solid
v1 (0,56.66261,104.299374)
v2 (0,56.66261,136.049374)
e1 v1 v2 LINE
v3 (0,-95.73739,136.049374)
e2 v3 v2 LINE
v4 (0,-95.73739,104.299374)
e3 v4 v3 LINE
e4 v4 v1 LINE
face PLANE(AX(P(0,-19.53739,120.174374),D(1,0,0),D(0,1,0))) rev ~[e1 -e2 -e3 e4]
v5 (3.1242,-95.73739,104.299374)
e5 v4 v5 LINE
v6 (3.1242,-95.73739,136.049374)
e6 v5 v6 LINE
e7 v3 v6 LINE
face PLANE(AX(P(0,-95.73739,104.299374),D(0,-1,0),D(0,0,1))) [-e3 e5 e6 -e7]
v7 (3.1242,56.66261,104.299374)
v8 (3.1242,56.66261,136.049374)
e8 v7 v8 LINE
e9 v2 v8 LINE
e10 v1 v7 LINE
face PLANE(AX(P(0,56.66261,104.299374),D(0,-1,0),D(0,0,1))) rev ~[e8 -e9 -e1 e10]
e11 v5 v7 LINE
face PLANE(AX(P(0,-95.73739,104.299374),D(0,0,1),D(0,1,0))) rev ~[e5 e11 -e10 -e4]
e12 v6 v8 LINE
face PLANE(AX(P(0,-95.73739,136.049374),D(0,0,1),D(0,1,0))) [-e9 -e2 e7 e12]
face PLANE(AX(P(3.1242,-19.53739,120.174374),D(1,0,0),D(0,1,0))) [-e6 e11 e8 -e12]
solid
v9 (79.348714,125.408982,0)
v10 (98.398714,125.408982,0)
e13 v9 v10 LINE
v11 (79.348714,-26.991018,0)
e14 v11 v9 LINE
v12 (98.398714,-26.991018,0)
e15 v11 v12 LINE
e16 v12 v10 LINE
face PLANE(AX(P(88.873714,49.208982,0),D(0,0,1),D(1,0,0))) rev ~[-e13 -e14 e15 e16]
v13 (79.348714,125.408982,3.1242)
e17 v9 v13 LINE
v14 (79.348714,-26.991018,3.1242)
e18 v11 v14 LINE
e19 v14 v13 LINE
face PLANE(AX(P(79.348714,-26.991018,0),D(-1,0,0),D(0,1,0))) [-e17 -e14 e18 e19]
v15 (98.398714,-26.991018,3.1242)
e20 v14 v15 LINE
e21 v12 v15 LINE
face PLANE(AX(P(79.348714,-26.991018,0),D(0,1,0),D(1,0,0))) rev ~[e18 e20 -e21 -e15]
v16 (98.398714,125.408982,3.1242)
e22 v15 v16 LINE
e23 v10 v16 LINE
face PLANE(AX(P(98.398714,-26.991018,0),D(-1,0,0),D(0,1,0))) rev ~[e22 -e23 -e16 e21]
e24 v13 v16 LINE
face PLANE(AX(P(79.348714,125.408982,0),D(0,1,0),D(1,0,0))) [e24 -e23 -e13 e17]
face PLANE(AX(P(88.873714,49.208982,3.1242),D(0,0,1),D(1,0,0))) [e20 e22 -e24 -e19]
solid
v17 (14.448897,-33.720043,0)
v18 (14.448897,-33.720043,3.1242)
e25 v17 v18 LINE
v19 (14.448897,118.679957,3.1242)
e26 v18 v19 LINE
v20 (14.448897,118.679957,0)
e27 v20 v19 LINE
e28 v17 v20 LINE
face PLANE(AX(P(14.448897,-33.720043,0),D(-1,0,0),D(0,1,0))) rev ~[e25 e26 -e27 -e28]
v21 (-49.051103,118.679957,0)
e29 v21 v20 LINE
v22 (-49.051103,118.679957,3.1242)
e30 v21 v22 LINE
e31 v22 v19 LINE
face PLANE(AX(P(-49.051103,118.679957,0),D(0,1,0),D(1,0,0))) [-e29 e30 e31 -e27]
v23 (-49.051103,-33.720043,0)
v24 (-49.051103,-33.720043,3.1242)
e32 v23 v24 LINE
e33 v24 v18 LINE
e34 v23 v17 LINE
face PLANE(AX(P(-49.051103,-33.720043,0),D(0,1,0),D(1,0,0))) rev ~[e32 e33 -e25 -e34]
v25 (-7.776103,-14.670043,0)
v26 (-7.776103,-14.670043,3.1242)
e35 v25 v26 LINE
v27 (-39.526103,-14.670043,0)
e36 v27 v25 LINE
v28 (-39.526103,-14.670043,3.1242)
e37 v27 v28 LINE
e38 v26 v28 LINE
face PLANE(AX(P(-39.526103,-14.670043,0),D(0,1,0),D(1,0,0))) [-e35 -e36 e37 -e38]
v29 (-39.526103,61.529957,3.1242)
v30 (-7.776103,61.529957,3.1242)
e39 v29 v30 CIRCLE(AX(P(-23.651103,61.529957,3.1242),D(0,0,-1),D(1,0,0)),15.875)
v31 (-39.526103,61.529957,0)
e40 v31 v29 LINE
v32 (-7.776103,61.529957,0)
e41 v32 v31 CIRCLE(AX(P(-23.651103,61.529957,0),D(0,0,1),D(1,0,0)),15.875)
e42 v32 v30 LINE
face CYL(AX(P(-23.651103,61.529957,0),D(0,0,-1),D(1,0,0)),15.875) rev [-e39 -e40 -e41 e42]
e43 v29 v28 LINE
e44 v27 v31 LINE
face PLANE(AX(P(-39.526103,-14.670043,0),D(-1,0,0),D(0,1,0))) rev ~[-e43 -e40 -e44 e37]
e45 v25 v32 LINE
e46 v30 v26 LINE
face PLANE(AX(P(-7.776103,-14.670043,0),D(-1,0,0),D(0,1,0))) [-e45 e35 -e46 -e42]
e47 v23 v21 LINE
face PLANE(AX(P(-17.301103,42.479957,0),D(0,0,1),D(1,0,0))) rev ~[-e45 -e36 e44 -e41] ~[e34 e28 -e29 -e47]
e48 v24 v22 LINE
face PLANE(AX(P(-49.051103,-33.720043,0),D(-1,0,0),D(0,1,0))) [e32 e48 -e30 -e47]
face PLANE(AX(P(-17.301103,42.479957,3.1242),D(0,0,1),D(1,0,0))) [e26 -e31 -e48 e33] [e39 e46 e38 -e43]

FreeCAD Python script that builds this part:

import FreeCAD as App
import Part
import Sketcher
from FreeCAD import Vector
Q = App.Units.Quantity

doc = App.newDocument("Part")
params = doc.addObject("Spreadsheet::Sheet", "Params")
for row, (alias, value) in enumerate([
    ("sketch1_height", "6 in"),
    ("sketch1_width", "2.5 in"),
    ("pad1_length", "0.123 in"),
    ("sketch2_height", "3 in"),
    ("sketch2_width", "1.25 in"),
    ("pocket1_length", "1 in"),
    ("sketch3_diameter", "1.25 in"),
    ("pocket2_length", "1 in"),
    ("sketch4_height", "6 in"),
    ("sketch4_width", "0.75 in"),
    ("pad2_length", "0.123 in"),
    ("sketch5_width", "6 in"),
    ("sketch5_height", "1.25 in"),
    ("pad3_length", "0.123 in"),
], start=1):
    params.set(f"A{row}", alias)
    params.set(f"B{row}", "=" + value)
    params.setAlias(f"B{row}", alias)

body = doc.addObject("PartDesign::Body", "Body")

# Sketch on XY plane
sketch1 = body.newObject("Sketcher::SketchObject", "Sketch")
sketch1.AttachmentSupport = (doc.getObject("XY_Plane"), [""])
sketch1.MapMode = "FlatFace"
sketch1.addGeometry([
    Part.LineSegment(Vector(-49, 119, 0), Vector(-49, -34, 0)),
    Part.LineSegment(Vector(-49, -34, 0), Vector(14, -34, 0)),
    Part.LineSegment(Vector(14, -34, 0), Vector(14, 119, 0)),
    Part.LineSegment(Vector(14, 119, 0), Vector(-49, 119, 0)),
], False)
sketch1.addConstraint([
    Sketcher.Constraint("Coincident", 0, 2, 1, 1),
    Sketcher.Constraint("Coincident", 1, 2, 2, 1),
    Sketcher.Constraint("Coincident", 2, 2, 3, 1),
    Sketcher.Constraint("Coincident", 3, 2, 0, 1),
    Sketcher.Constraint("Vertical", 0),
    Sketcher.Constraint("Horizontal", 1),
    Sketcher.Constraint("Vertical", 2),
    Sketcher.Constraint("Horizontal", 3),
    Sketcher.Constraint("DistanceY", 0, 2, 0, 1, Q("6 in")),
    Sketcher.Constraint("DistanceX", 1, 1, 1, 2, Q("2.5 in")),
    Sketcher.Constraint("DistanceX", 0, 2, -1, 1, 49.051103),
    Sketcher.Constraint("DistanceY", 0, 2, -1, 1, 33.720043),
])
sketch1.setExpression("Constraints[8]", "Params.sketch1_height")
sketch1.setExpression("Constraints[9]", "Params.sketch1_width")
pad1 = body.newObject("PartDesign::Pad", "Pad")
pad1.Profile = sketch1
pad1.setExpression("Length", "Params.pad1_length")

# Sketch on XY plane
sketch2 = body.newObject("Sketcher::SketchObject", "Sketch001")
sketch2.AttachmentSupport = (doc.getObject("XY_Plane"), [""])
sketch2.MapMode = "FlatFace"
sketch2.addGeometry([
    Part.LineSegment(Vector(-40, 62, 0), Vector(-40, -15, 0)),
    Part.LineSegment(Vector(-40, -15, 0), Vector(-8, -15, 0)),
    Part.LineSegment(Vector(-8, -15, 0), Vector(-8, 62, 0)),
    Part.LineSegment(Vector(-8, 62, 0), Vector(-40, 62, 0)),
], False)
sketch2.addConstraint([
    Sketcher.Constraint("Coincident", 0, 2, 1, 1),
    Sketcher.Constraint("Coincident", 1, 2, 2, 1),
    Sketcher.Constraint("Coincident", 2, 2, 3, 1),
    Sketcher.Constraint("Coincident", 3, 2, 0, 1),
    Sketcher.Constraint("Vertical", 0),
    Sketcher.Constraint("Horizontal", 1),
    Sketcher.Constraint("Vertical", 2),
    Sketcher.Constraint("Horizontal", 3),
    Sketcher.Constraint("DistanceY", 0, 2, 0, 1, Q("3 in")),
    Sketcher.Constraint("DistanceX", 1, 1, 1, 2, Q("1.25 in")),
    Sketcher.Constraint("DistanceX", 0, 2, -1, 1, 39.526103),
    Sketcher.Constraint("DistanceY", 0, 2, -1, 1, 14.670043),
])
sketch2.setExpression("Constraints[8]", "Params.sketch2_height")
sketch2.setExpression("Constraints[9]", "Params.sketch2_width")
pocket1 = body.newObject("PartDesign::Pocket", "Pocket")
pocket1.Profile = sketch2
pocket1.setExpression("Length", "Params.pocket1_length")
pocket1.Reversed = True

# Sketch on XY plane
sketch3 = body.newObject("Sketcher::SketchObject", "Sketch002")
sketch3.AttachmentSupport = (doc.getObject("XY_Plane"), [""])
sketch3.MapMode = "FlatFace"
sketch3.addGeometry(Part.Circle(Vector(-24, 62, 0), Vector(0, 0, 1), 16), False)
sketch3.addConstraint([
    Sketcher.Constraint("Diameter", 0, Q("1.25 in")),
    Sketcher.Constraint("DistanceX", 0, 3, -1, 1, 23.651103),
    Sketcher.Constraint("DistanceY", -1, 1, 0, 3, 61.529957),
])
sketch3.setExpression("Constraints[0]", "Params.sketch3_diameter")
pocket2 = body.newObject("PartDesign::Pocket", "Pocket001")
pocket2.Profile = sketch3
pocket2.setExpression("Length", "Params.pocket2_length")
pocket2.Reversed = True
body2 = doc.addObject("PartDesign::Body", "Body001")

# Sketch on XY plane
sketch4 = body2.newObject("Sketcher::SketchObject", "Sketch003")
sketch4.AttachmentSupport = (doc.getObject("XY_Plane001"), [""])
sketch4.MapMode = "FlatFace"
sketch4.addGeometry([
    Part.LineSegment(Vector(79, 125, 0), Vector(79, -27, 0)),
    Part.LineSegment(Vector(79, -27, 0), Vector(98, -27, 0)),
    Part.LineSegment(Vector(98, -27, 0), Vector(98, 125, 0)),
    Part.LineSegment(Vector(98, 125, 0), Vector(79, 125, 0)),
], False)
sketch4.addConstraint([
    Sketcher.Constraint("Coincident", 0, 2, 1, 1),
    Sketcher.Constraint("Coincident", 1, 2, 2, 1),
    Sketcher.Constraint("Coincident", 2, 2, 3, 1),
    Sketcher.Constraint("Coincident", 3, 2, 0, 1),
    Sketcher.Constraint("Vertical", 0),
    Sketcher.Constraint("Horizontal", 1),
    Sketcher.Constraint("Vertical", 2),
    Sketcher.Constraint("Horizontal", 3),
    Sketcher.Constraint("DistanceY", 0, 2, 0, 1, Q("6 in")),
    Sketcher.Constraint("DistanceX", 1, 1, 1, 2, Q("0.75 in")),
    Sketcher.Constraint("DistanceY", 0, 2, -1, 1, 26.991018),
    Sketcher.Constraint("DistanceX", -1, 1, 0, 2, 79.348714),
])
sketch4.setExpression("Constraints[8]", "Params.sketch4_height")
sketch4.setExpression("Constraints[9]", "Params.sketch4_width")
pad2 = body2.newObject("PartDesign::Pad", "Pad001")
pad2.Profile = sketch4
pad2.setExpression("Length", "Params.pad2_length")
body3 = doc.addObject("PartDesign::Body", "Body002")

# Sketch on YZ plane
sketch5 = body3.newObject("Sketcher::SketchObject", "Sketch004")
sketch5.AttachmentSupport = (doc.getObject("YZ_Plane002"), [""])
sketch5.MapMode = "FlatFace"
sketch5.addGeometry([
    Part.LineSegment(Vector(-96, 136, 0), Vector(-96, 104, 0)),
    Part.LineSegment(Vector(-96, 104, 0), Vector(57, 104, 0)),
    Part.LineSegment(Vector(57, 104, 0), Vector(57, 136, 0)),
    Part.LineSegment(Vector(57, 136, 0), Vector(-96, 136, 0)),
], False)
sketch5.addConstraint([
    Sketcher.Constraint("Coincident", 0, 2, 1, 1),
    Sketcher.Constraint("Coincident", 1, 2, 2, 1),
    Sketcher.Constraint("Coincident", 2, 2, 3, 1),
    Sketcher.Constraint("Coincident", 3, 2, 0, 1),
    Sketcher.Constraint("Vertical", 0),
    Sketcher.Constraint("Horizontal", 1),
    Sketcher.Constraint("Vertical", 2),
    Sketcher.Constraint("Horizontal", 3),
    Sketcher.Constraint("DistanceX", 1, 1, 1, 2, Q("6 in")),
    Sketcher.Constraint("DistanceY", 0, 2, 0, 1, Q("1.25 in")),
    Sketcher.Constraint("DistanceX", 0, 2, -1, 1, 95.73739),
    Sketcher.Constraint("DistanceY", -1, 1, 0, 2, 104.299374),
])
sketch5.setExpression("Constraints[8]", "Params.sketch5_width")
sketch5.setExpression("Constraints[9]", "Params.sketch5_height")
pad3 = body3.newObject("PartDesign::Pad", "Pad002")
pad3.Profile = sketch5
pad3.setExpression("Length", "Params.pad3_length")

doc.recompute()
